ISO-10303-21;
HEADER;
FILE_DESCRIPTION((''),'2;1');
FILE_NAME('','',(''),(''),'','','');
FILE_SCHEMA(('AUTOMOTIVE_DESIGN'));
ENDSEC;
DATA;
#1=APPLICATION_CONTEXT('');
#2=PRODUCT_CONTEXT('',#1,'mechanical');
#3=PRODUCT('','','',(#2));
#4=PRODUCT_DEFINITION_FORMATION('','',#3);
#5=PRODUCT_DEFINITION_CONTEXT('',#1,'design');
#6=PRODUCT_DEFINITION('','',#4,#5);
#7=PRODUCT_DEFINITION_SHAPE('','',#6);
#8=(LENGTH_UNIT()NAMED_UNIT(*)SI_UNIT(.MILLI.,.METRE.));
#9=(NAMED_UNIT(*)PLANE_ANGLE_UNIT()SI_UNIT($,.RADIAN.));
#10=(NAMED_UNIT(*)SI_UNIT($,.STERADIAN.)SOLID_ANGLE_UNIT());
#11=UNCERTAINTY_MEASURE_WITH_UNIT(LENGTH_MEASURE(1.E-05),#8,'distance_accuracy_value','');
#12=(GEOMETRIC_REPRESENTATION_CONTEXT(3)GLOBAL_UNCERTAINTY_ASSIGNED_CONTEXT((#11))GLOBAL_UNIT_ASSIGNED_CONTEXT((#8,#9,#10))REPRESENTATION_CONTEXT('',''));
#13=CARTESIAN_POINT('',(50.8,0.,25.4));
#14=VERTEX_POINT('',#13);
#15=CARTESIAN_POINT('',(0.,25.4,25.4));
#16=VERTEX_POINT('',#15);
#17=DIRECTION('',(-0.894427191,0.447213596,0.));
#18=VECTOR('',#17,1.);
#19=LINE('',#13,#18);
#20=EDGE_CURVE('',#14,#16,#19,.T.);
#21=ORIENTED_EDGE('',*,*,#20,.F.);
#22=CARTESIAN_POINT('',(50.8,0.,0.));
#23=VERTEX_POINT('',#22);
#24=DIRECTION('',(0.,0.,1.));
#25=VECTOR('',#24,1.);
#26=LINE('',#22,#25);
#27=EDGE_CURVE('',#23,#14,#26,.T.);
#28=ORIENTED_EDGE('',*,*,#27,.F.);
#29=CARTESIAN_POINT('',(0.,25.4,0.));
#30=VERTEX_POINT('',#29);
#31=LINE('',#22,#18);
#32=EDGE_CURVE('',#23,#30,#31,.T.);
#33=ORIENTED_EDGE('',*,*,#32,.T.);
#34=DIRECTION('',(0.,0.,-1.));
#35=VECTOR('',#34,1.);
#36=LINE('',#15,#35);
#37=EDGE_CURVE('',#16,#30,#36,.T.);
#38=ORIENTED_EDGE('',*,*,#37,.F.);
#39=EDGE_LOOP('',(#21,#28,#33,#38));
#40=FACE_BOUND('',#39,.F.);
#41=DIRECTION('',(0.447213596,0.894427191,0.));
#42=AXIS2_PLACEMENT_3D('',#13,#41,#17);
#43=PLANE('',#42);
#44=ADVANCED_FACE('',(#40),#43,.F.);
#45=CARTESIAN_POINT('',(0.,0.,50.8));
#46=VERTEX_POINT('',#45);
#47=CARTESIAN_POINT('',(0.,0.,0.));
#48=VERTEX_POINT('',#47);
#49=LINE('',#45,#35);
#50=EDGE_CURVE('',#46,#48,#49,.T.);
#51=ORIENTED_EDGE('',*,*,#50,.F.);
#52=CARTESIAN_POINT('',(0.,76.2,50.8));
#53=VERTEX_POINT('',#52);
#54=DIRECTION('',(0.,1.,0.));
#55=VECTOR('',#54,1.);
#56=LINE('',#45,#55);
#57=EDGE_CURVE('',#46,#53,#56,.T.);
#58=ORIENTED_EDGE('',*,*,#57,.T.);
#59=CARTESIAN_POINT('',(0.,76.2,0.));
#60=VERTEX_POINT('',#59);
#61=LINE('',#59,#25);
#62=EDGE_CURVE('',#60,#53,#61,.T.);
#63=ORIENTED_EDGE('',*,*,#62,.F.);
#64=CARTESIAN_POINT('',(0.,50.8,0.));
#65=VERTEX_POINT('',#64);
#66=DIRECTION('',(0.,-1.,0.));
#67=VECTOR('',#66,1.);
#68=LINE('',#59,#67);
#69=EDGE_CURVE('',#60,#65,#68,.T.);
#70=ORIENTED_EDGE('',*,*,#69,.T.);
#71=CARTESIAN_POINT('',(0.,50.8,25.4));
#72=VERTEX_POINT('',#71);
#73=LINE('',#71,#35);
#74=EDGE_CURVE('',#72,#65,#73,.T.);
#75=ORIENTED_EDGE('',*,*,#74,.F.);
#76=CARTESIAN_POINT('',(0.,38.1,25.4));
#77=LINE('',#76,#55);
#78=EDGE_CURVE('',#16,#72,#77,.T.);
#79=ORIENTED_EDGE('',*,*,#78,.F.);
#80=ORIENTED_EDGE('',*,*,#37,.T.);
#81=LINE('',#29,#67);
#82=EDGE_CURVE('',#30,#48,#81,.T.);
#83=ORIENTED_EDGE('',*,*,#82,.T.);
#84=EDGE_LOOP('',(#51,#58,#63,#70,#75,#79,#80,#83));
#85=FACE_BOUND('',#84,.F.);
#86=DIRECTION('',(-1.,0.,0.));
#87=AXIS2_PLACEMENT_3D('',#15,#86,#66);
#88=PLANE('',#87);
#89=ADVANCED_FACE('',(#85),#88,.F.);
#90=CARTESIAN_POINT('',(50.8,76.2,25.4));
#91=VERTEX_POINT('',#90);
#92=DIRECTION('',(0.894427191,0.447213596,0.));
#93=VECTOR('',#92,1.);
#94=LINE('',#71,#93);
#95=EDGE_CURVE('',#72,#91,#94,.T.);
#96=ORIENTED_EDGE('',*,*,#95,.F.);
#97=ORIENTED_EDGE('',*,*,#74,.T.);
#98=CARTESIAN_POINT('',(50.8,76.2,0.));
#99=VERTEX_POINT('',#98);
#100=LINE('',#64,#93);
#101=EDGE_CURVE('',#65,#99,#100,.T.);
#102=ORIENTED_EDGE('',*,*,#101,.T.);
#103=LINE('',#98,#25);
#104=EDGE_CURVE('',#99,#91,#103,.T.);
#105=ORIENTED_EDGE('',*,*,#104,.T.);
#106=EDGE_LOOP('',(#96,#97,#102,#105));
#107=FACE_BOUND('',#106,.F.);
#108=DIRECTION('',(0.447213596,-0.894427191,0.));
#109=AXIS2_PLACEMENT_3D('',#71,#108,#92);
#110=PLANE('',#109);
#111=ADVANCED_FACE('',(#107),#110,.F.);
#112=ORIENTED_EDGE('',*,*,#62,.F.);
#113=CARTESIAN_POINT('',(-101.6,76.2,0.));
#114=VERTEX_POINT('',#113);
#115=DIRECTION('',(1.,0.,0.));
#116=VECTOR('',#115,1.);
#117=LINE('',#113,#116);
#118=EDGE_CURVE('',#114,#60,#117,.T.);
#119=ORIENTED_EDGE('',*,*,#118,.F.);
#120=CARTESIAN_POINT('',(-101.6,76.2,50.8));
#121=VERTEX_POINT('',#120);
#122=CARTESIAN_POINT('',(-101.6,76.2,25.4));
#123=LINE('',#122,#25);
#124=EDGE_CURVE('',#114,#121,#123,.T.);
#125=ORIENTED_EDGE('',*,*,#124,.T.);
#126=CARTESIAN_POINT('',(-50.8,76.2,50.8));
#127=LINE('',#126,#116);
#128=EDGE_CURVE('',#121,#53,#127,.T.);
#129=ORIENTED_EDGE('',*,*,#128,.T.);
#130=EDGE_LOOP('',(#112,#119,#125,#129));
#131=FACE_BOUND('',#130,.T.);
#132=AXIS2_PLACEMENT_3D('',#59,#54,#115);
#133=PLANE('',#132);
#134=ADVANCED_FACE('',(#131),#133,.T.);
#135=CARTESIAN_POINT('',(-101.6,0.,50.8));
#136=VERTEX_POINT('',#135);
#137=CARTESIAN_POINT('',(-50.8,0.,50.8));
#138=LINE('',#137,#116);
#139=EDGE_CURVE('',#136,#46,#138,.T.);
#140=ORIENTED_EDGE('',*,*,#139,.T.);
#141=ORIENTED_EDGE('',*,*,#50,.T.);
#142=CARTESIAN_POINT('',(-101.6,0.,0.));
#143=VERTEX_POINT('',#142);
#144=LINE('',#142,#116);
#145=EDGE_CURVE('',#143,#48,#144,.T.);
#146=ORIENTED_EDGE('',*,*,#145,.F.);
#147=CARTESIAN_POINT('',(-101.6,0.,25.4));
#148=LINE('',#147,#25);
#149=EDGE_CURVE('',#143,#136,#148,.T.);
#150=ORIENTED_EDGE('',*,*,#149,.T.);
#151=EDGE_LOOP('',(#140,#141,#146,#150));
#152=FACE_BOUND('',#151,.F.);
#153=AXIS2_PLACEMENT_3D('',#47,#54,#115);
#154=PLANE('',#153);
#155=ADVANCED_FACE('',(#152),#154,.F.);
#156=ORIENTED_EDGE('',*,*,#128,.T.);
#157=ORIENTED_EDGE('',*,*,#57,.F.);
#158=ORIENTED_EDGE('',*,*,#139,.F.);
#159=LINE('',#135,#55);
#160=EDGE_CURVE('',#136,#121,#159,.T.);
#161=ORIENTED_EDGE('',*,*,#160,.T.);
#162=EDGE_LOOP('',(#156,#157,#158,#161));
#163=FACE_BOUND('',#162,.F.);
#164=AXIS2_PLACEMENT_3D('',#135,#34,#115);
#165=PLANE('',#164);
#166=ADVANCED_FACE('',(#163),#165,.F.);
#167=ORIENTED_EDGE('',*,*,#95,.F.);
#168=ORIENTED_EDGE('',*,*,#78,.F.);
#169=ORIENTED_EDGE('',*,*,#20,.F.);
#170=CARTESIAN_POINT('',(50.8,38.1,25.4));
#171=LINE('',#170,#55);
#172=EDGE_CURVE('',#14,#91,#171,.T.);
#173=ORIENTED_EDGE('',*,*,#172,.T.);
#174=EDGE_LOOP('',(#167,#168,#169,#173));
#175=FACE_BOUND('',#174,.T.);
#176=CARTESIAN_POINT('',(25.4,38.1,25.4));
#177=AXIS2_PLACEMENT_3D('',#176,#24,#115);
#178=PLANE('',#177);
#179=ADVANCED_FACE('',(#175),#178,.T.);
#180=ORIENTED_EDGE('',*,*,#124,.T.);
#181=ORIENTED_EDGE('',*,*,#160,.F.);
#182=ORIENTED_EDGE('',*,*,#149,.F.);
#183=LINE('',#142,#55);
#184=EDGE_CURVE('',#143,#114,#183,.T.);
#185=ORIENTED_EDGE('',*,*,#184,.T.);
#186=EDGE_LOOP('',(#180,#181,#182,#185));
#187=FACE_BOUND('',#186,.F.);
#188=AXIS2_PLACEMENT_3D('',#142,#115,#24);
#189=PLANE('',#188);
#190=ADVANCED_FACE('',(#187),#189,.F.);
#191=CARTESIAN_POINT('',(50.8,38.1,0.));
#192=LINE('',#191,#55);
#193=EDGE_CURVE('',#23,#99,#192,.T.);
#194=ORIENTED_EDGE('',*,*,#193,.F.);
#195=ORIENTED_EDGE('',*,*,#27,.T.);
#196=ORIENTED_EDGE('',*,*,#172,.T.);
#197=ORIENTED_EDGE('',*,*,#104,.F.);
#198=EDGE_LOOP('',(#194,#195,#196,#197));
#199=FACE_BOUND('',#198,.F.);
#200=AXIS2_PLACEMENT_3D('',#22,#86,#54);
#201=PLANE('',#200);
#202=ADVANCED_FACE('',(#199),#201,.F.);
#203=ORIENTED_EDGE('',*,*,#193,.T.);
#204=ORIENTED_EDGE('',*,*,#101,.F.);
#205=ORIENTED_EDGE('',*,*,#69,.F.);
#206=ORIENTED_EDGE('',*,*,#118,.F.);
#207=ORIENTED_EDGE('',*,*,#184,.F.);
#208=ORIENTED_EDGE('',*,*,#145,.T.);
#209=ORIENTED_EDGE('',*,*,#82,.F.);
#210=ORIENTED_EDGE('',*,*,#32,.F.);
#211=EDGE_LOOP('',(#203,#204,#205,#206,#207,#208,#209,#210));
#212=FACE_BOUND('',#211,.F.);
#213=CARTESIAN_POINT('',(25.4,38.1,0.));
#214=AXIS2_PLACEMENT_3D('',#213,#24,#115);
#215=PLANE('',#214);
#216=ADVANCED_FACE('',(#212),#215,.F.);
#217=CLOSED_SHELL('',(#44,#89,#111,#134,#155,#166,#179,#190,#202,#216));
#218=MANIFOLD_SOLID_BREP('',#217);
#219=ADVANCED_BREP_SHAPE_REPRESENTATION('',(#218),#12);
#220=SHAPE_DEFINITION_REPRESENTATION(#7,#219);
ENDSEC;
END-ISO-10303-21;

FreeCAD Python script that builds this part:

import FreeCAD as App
import Part
import Sketcher

V = App.Vector
Q = App.Units.Quantity

doc = App.newDocument("Part")
body = doc.addObject("PartDesign::Body", "Body")

sketch1 = doc.addObject("Sketcher::SketchObject", "Sketch")
body.addObject(sketch1)
sketch1.AttachmentSupport = (doc.XZ_Plane, [""])
sketch1.MapMode = "FlatFace"
sketch1.addGeometry([
    Part.LineSegment(V(-102, 51, 0), V(-102, 0, 0)),
    Part.LineSegment(V(-102, 0, 0), V(0, 0, 0)),
    Part.LineSegment(V(0, 0, 0), V(0, 51, 0)),
    Part.LineSegment(V(0, 51, 0), V(-102, 51, 0)),
], False)
sketch1.addConstraint([
    Sketcher.Constraint("Coincident", 0, 2, 1, 1),
    Sketcher.Constraint("Coincident", 1, 2, 2, 1),
    Sketcher.Constraint("Coincident", 2, 2, 3, 1),
    Sketcher.Constraint("Coincident", 3, 2, 0, 1),
    Sketcher.Constraint("Vertical", 0),
    Sketcher.Constraint("Horizontal", 1),
    Sketcher.Constraint("Vertical", 2),
    Sketcher.Constraint("Horizontal", 3),
    Sketcher.Constraint("Coincident", 1, 2, -1, 1),
    Sketcher.Constraint("DistanceX", 1, 1, 1, 2, Q("4 in")),
    Sketcher.Constraint("DistanceY", 0, 2, 0, 1, Q("2 in")),
])
pad1 = doc.addObject("PartDesign::Pad", "Pad")
body.addObject(pad1)
pad1.Profile = sketch1
pad1.Length = Q("3 in")
pad1.Reversed = True

sketch2 = doc.addObject("Sketcher::SketchObject", "Sketch001")
body.addObject(sketch2)
sketch2.AttachmentSupport = (doc.XY_Plane, [""])
sketch2.MapMode = "FlatFace"
sketch2.addGeometry([
    Part.LineSegment(V(0, 76, 0), V(0, 0, 0)),
    Part.LineSegment(V(0, 0, 0), V(51, 0, 0)),
    Part.LineSegment(V(51, 0, 0), V(51, 76, 0)),
    Part.LineSegment(V(51, 76, 0), V(0, 76, 0)),
], False)
sketch2.addConstraint([
    Sketcher.Constraint("Coincident", 0, 2, 1, 1),
    Sketcher.Constraint("Coincident", 1, 2, 2, 1),
    Sketcher.Constraint("Coincident", 2, 2, 3, 1),
    Sketcher.Constraint("Coincident", 3, 2, 0, 1),
    Sketcher.Constraint("Vertical", 0),
    Sketcher.Constraint("Horizontal", 1),
    Sketcher.Constraint("Vertical", 2),
    Sketcher.Constraint("Horizontal", 3),
    Sketcher.Constraint("Coincident", 0, 2, -1, 1),
    Sketcher.Constraint("DistanceX", 1, 1, 1, 2, Q("2 in")),
    Sketcher.Constraint("DistanceY", 0, 2, 0, 1, Q("3 in")),
])
pad2 = doc.addObject("PartDesign::Pad", "Pad001")
body.addObject(pad2)
pad2.Profile = sketch2
pad2.Length = Q("1 in")

sketch3 = doc.addObject("Sketcher::SketchObject", "Sketch002")
body.addObject(sketch3)
sketch3.AttachmentSupport = (doc.XY_Plane, [""])
sketch3.MapMode = "FlatFace"
sketch3.AttachmentOffset = App.Placement(V(0, 0, 1 * 25.4), App.Rotation())
sketch3.addGeometry([
    Part.LineSegment(V(0, 25, 0), V(0, 0, 0)),
    Part.LineSegment(V(0, 0, 0), V(51, 0, 0)),
    Part.LineSegment(V(51, 0, 0), V(0, 25, 0)),
    Part.LineSegment(V(0, 51, 0), V(51, 76, 0)),
    Part.LineSegment(V(51, 76, 0), V(0, 76, 0)),
    Part.LineSegment(V(0, 76, 0), V(0, 51, 0)),
], False)
sketch3.addConstraint([
    Sketcher.Constraint("Coincident", 0, 2, 1, 1),
    Sketcher.Constraint("Coincident", 1, 2, 2, 1),
    Sketcher.Constraint("Coincident", 2, 2, 0, 1),
    Sketcher.Constraint("Coincident", 3, 2, 4, 1),
    Sketcher.Constraint("Coincident", 4, 2, 5, 1),
    Sketcher.Constraint("Coincident", 5, 2, 3, 1),
    Sketcher.Constraint("Vertical", 0),
    Sketcher.Constraint("Horizontal", 1),
    Sketcher.Constraint("Horizontal", 4),
    Sketcher.Constraint("Vertical", 5),
    Sketcher.Constraint("Coincident", 0, 2, -1, 1),
    Sketcher.Constraint("PointOnObject", 4, 2, -2),
    Sketcher.Constraint("Vertical", 1, 2, 3, 2),
    Sketcher.Constraint("Equal", 0, 5),
    Sketcher.Constraint("DistanceX", 1, 1, 1, 2, Q("2 in")),
    Sketcher.Constraint("DistanceY", 0, 2, 0, 1, Q("1 in")),
    Sketcher.Constraint("DistanceY", -1, 1, 3, 2, Q("3 in")),
])
pocket1 = doc.addObject("PartDesign::Pocket", "Pocket")
body.addObject(pocket1)
pocket1.Profile = sketch3
pocket1.Type = "ThroughAll"

doc.recompute()
